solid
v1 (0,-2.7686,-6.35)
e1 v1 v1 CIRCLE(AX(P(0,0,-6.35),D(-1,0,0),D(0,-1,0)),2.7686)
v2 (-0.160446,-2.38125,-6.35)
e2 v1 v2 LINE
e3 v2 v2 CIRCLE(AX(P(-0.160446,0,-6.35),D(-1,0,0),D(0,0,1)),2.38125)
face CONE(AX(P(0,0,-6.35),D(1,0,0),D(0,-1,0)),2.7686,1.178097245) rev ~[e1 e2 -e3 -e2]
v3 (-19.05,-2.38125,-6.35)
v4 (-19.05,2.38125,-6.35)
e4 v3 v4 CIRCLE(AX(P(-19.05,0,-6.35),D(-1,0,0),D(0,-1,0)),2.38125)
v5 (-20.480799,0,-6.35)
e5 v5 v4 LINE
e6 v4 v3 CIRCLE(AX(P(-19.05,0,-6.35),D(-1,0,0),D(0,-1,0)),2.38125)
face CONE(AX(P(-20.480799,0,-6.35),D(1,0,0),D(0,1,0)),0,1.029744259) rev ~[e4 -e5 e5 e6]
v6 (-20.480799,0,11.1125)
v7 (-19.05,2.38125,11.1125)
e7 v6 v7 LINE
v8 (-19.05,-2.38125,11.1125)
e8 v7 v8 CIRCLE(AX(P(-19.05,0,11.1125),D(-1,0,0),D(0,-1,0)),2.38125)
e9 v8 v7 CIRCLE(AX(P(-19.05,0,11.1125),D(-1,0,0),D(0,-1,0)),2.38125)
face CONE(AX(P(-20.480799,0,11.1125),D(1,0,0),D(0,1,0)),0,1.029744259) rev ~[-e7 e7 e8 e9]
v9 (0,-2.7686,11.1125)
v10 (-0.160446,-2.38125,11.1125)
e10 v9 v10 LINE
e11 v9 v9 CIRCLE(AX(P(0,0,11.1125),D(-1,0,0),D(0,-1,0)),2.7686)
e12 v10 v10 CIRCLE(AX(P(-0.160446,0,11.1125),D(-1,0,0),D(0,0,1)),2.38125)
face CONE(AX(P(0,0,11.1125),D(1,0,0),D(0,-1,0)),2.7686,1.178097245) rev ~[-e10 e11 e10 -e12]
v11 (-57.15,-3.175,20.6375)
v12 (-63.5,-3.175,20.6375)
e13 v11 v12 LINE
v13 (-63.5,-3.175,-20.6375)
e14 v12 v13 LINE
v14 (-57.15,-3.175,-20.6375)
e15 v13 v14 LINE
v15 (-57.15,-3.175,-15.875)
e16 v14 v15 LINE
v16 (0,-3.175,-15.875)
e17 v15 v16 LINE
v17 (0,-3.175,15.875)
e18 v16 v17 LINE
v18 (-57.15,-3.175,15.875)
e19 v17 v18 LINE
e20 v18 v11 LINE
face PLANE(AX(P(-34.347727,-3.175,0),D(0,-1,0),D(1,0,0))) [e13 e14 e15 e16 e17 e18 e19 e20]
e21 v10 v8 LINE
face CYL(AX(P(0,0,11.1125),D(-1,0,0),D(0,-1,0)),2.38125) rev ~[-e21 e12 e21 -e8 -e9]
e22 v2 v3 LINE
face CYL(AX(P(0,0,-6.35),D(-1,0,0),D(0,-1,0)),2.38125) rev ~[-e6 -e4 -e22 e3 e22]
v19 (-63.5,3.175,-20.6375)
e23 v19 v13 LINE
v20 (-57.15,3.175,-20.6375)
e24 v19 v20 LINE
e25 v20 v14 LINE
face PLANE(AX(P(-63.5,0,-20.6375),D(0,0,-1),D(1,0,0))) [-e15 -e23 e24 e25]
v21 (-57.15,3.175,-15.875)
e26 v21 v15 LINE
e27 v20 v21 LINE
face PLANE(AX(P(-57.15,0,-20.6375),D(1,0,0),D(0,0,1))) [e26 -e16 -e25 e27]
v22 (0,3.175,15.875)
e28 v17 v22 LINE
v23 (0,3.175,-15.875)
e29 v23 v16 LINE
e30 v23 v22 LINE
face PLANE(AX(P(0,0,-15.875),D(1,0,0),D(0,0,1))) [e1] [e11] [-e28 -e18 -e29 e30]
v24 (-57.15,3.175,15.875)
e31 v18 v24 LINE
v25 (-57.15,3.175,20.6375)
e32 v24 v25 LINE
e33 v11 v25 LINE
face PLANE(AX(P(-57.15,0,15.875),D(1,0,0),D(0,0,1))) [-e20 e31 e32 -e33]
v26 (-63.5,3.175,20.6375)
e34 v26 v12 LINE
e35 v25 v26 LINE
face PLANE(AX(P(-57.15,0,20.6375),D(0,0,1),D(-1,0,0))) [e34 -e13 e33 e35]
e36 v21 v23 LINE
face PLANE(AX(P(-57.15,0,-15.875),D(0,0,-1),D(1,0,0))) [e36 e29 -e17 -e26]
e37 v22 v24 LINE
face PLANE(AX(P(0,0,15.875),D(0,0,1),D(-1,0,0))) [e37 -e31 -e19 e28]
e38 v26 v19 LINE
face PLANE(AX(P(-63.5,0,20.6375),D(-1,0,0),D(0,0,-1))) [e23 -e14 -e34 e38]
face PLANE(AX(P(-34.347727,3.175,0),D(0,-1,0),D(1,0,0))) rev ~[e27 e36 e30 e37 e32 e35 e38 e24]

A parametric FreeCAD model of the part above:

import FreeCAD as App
import Part
import Sketcher
from FreeCAD import Vector
Q = App.Units.Quantity

doc = App.newDocument("Part")
body = doc.addObject("PartDesign::Body", "Body")

# Sketch on XZ plane
sketch1 = body.newObject("Sketcher::SketchObject", "Sketch")
sketch1.AttachmentSupport = (doc.getObject("XZ_Plane"), [""])
sketch1.MapMode = "FlatFace"
sketch1.addGeometry(Part.LineSegment(Vector(-57.1, 20.6, 0), Vector(-63.5, 20.6, 0)), False)
sketch1.addGeometry(Part.LineSegment(Vector(-63.5, 20.6, 0), Vector(-63.5, -20.6, 0)), False)
sketch1.addGeometry(Part.LineSegment(Vector(-63.5, -20.6, 0), Vector(-57.1, -20.6, 0)), False)
sketch1.addGeometry(Part.LineSegment(Vector(-57.1, -20.6, 0), Vector(-57.1, -15.9, 0)), False)
sketch1.addGeometry(Part.LineSegment(Vector(-57.1, -15.9, 0), Vector(0, -15.9, 0)), False)
sketch1.addGeometry(Part.LineSegment(Vector(0, -15.9, 0), Vector(0, 15.9, 0)), False)
sketch1.addGeometry(Part.LineSegment(Vector(0, 15.9, 0), Vector(-57.1, 15.9, 0)), False)
sketch1.addGeometry(Part.LineSegment(Vector(-57.1, 15.9, 0), Vector(-57.1, 20.6, 0)), False)
sketch1.addConstraint(Sketcher.Constraint("Coincident", 0, 2, 1, 1))
sketch1.addConstraint(Sketcher.Constraint("Coincident", 1, 2, 2, 1))
sketch1.addConstraint(Sketcher.Constraint("Coincident", 2, 2, 3, 1))
sketch1.addConstraint(Sketcher.Constraint("Coincident", 3, 2, 4, 1))
sketch1.addConstraint(Sketcher.Constraint("Coincident", 4, 2, 5, 1))
sketch1.addConstraint(Sketcher.Constraint("Coincident", 5, 2, 6, 1))
sketch1.addConstraint(Sketcher.Constraint("Coincident", 6, 2, 7, 1))
sketch1.addConstraint(Sketcher.Constraint("Coincident", 7, 2, 0, 1))
sketch1.addConstraint(Sketcher.Constraint("Horizontal", 0))
sketch1.addConstraint(Sketcher.Constraint("Vertical", 1))
sketch1.addConstraint(Sketcher.Constraint("Horizontal", 2))
sketch1.addConstraint(Sketcher.Constraint("Vertical", 3))
sketch1.addConstraint(Sketcher.Constraint("Horizontal", 4))
sketch1.addConstraint(Sketcher.Constraint("Vertical", 5))
sketch1.addConstraint(Sketcher.Constraint("Horizontal", 6))
sketch1.addConstraint(Sketcher.Constraint("Vertical", 7))
sketch1.addConstraint(Sketcher.Constraint("Symmetric", 4, 2, 5, 2, -1, 1))
sketch1.addConstraint(Sketcher.Constraint("Symmetric", 2, 2, 7, 2, -1))
sketch1.addConstraint(Sketcher.Constraint("DistanceX", 0, 2, 0, 1, Q("0.25 in")))
sketch1.addConstraint(Sketcher.Constraint("DistanceX", 4, 1, 4, 2, Q("2.25 in")))
sketch1.addConstraint(Sketcher.Constraint("DistanceY", 5, 1, 5, 2, Q("1.25 in")))
sketch1.addConstraint(Sketcher.Constraint("DistanceY", 1, 2, 1, 1, Q("1.625 in")))
pad1 = body.newObject("PartDesign::Pad", "Pad")
pad1.Profile = sketch1
pad1.Length = Q("0.25 in")
pad1.Midplane = True

# Sketch on YZ plane
sketch2 = body.newObject("Sketcher::SketchObject", "Sketch001")
sketch2.AttachmentSupport = (doc.getObject("YZ_Plane"), [""])
sketch2.MapMode = "FlatFace"
sketch2.addGeometry(Part.Circle(Vector(0, 11.1, 0), Vector(0, 0, 1), 2.4), False)
sketch2.addGeometry(Part.Circle(Vector(0, -6.3, 0), Vector(0, 0, 1), 2.4), False)
sketch2.addConstraint(Sketcher.Constraint("Equal", 0, 1))
sketch2.addConstraint(Sketcher.Constraint("PointOnObject", 0, 3, -2))
sketch2.addConstraint(Sketcher.Constraint("PointOnObject", 1, 3, -2))
sketch2.addConstraint(Sketcher.Constraint("Diameter", 0, Q("0.1875 in")))
sketch2.addConstraint(Sketcher.Constraint("DistanceY", 1, 3, -1, 1, Q("0.25 in")))
sketch2.addConstraint(Sketcher.Constraint("DistanceY", -1, 1, 0, 3, Q("0.4375 in")))
doc.recompute()
hole = body.newObject("PartDesign::Hole", "Hole")
hole.Profile = sketch2
hole.ThreadType = "None"
hole.Diameter = Q("0.1875 in")
hole.DepthType = "Dimension"
hole.Depth = Q("0.75 in")
hole.DrillPoint = "Angled"
hole.DrillPointAngle = 118
hole.HoleCutType = "Countersink"
hole.HoleCutDiameter = Q("0.218 in")
hole.HoleCutCountersinkAngle = 135

doc.recompute()
